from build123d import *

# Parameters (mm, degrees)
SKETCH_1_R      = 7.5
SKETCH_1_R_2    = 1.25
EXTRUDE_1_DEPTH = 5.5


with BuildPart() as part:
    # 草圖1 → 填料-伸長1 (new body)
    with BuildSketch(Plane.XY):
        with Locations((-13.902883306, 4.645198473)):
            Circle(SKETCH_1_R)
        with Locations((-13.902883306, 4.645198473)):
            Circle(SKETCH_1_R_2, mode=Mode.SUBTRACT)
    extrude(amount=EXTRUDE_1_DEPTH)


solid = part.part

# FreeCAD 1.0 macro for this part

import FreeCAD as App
import Part
import Sketcher
from FreeCAD import Vector

doc = App.newDocument("Part")
body = doc.addObject("PartDesign::Body", "Body")

sketch1 = body.newObject("Sketcher::SketchObject", "Sketch")
sketch1.AttachmentSupport = (doc.getObject("XY_Plane"), [""])
sketch1.MapMode = "FlatFace"
sketch1.addGeometry([
    Part.Circle(Vector(-13.9, 4.6, 0), Vector(0, 0, 1), 7.5),
    Part.Circle(Vector(-13.9, 4.6, 0), Vector(0, 0, 1), 1.2),
], False)
sketch1.addConstraint([
    Sketcher.Constraint("Coincident", 1, 3, 0, 3),
    Sketcher.Constraint("Diameter", 0, 15.0),
    Sketcher.Constraint("Diameter", 1, 2.5),
    Sketcher.Constraint("DistanceY", -1, 1, 0, 3, 4.645198),
    Sketcher.Constraint("DistanceX", 0, 3, -1, 1, 13.902883),
])
pad1 = body.newObject("PartDesign::Pad", "Pad")
pad1.Profile = sketch1
pad1.Length = 5.5

doc.recompute()
